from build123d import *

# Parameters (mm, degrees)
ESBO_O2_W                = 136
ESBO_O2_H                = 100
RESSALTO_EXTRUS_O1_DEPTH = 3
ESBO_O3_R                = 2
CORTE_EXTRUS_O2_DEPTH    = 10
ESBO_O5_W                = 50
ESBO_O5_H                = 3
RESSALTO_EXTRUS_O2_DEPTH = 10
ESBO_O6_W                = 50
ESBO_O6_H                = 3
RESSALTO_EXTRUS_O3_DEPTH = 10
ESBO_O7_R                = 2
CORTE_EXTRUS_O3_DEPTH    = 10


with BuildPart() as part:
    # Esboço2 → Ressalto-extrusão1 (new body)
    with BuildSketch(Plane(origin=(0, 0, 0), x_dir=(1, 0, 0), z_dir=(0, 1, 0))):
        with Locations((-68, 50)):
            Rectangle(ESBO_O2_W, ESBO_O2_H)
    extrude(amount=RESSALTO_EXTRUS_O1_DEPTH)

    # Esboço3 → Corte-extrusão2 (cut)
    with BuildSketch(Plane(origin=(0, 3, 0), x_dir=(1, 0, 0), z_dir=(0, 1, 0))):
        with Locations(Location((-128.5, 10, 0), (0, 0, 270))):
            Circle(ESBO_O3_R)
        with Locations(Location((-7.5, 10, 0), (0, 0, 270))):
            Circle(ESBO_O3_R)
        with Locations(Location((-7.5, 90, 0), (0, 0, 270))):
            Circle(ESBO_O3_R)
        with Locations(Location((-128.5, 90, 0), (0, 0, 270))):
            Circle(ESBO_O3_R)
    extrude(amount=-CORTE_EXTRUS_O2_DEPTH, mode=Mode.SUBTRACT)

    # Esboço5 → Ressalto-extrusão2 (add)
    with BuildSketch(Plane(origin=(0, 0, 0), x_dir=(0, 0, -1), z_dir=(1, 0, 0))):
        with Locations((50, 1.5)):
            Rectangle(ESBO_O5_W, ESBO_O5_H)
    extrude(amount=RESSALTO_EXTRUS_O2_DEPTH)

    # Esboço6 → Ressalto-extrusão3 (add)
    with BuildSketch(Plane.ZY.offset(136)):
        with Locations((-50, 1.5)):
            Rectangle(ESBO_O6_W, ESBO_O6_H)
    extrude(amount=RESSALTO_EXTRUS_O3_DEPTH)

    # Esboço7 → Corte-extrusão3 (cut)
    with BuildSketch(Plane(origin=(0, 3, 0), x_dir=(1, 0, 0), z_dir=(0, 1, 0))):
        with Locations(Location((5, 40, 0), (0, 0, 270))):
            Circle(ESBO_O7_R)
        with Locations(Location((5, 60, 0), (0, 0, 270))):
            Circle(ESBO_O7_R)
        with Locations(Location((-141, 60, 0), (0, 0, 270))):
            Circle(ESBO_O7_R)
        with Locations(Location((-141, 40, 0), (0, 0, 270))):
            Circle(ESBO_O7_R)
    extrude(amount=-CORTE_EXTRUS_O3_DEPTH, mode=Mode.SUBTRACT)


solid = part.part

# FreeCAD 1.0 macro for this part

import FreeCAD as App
import Part
import Sketcher
from FreeCAD import Vector
Q = App.Units.Quantity

doc = App.newDocument("Part")
body = doc.addObject("PartDesign::Body", "Body")

sketch1 = doc.addObject("Sketcher::SketchObject", "Sketch")
body.addObject(sketch1)
sketch1.AttachmentSupport = (doc.XZ_Plane, [""])
sketch1.MapMode = "FlatFace"
sketch1.addGeometry([
    Part.LineSegment(Vector(-136, -100, 0), Vector(-136, 0, 0)),
    Part.LineSegment(Vector(-136, 0, 0), Vector(0, 0, 0)),
    Part.LineSegment(Vector(0, 0, 0), Vector(0, -100, 0)),
    Part.LineSegment(Vector(0, -100, 0), Vector(-136, -100, 0)),
], False)
sketch1.addConstraint([
    Sketcher.Constraint("Coincident", 0, 2, 1, 1),
    Sketcher.Constraint("Coincident", 1, 2, 2, 1),
    Sketcher.Constraint("Coincident", 2, 2, 3, 1),
    Sketcher.Constraint("Coincident", 3, 2, 0, 1),
    Sketcher.Constraint("Vertical", 0),
    Sketcher.Constraint("Horizontal", 1),
    Sketcher.Constraint("Vertical", 2),
    Sketcher.Constraint("Horizontal", 3),
    Sketcher.Constraint("Coincident", 1, 2, -1, 1),
    Sketcher.Constraint("DistanceX", 1, 1, 1, 2, Q("136 mm")),
    Sketcher.Constraint("DistanceY", 0, 1, 0, 2, Q("100 mm")),
])
pad1 = doc.addObject("PartDesign::Pad", "Pad")
body.addObject(pad1)
pad1.Profile = sketch1
pad1.Length = 3
pad1.Reversed = True

sketch2 = doc.addObject("Sketcher::SketchObject", "Sketch001")
body.addObject(sketch2)
sketch2.AttachmentSupport = (doc.XZ_Plane, [""])
sketch2.MapMode = "FlatFace"
sketch2.AttachmentOffset = App.Placement(Vector(0, 0, -3), App.Rotation())
sketch2.addGeometry([
    Part.Circle(Vector(-128.5, -10, 0), Vector(0, 0, 1), 2),
    Part.Circle(Vector(-7.5, -10, 0), Vector(0, 0, 1), 2),
    Part.Circle(Vector(-7.5, -90, 0), Vector(0, 0, 1), 2),
    Part.Circle(Vector(-128.5, -90, 0), Vector(0, 0, 1), 2),
], False)
sketch2.addConstraint([
    Sketcher.Constraint("Equal", 0, 1),
    Sketcher.Constraint("Equal", 1, 2),
    Sketcher.Constraint("Equal", 2, 3),
    Sketcher.Constraint("Horizontal", 0, 3, 1, 3),
    Sketcher.Constraint("Horizontal", 2, 3, 3, 3),
    Sketcher.Constraint("Vertical", 1, 3, 2, 3),
    Sketcher.Constraint("Vertical", 0, 3, 3, 3),
    Sketcher.Constraint("Diameter", 0, Q("4 mm")),
    Sketcher.Constraint("DistanceY", 0, 3, -1, 1, Q("10 mm")),
    Sketcher.Constraint("DistanceY", 2, 3, -1, 1, Q("90 mm")),
    Sketcher.Constraint("DistanceX", 0, 3, 1, 3, Q("121 mm")),
    Sketcher.Constraint("DistanceX", 0, 3, -1, 1, Q("128.5 mm")),
])
pocket1 = doc.addObject("PartDesign::Pocket", "Pocket")
body.addObject(pocket1)
pocket1.Profile = sketch2
pocket1.Length = 10
pocket1.Reversed = True

sketch3 = doc.addObject("Sketcher::SketchObject", "Sketch002")
body.addObject(sketch3)
sketch3.AttachmentSupport = (doc.YZ_Plane, [""])
sketch3.MapMode = "FlatFace"
sketch3.addGeometry([
    Part.LineSegment(Vector(3, -25, 0), Vector(0, -25, 0)),
    Part.LineSegment(Vector(0, -25, 0), Vector(0, -75, 0)),
    Part.LineSegment(Vector(0, -75, 0), Vector(3, -75, 0)),
    Part.LineSegment(Vector(3, -75, 0), Vector(3, -25, 0)),
], False)
sketch3.addConstraint([
    Sketcher.Constraint("Coincident", 0, 2, 1, 1),
    Sketcher.Constraint("Coincident", 1, 2, 2, 1),
    Sketcher.Constraint("Coincident", 2, 2, 3, 1),
    Sketcher.Constraint("Coincident", 3, 2, 0, 1),
    Sketcher.Constraint("Horizontal", 0),
    Sketcher.Constraint("Vertical", 1),
    Sketcher.Constraint("Horizontal", 2),
    Sketcher.Constraint("Vertical", 3),
    Sketcher.Constraint("PointOnObject", 0, 2, -2),
    Sketcher.Constraint("DistanceX", 0, 2, 0, 1, Q("3 mm")),
    Sketcher.Constraint("DistanceY", 1, 2, 1, 1, Q("50 mm")),
    Sketcher.Constraint("DistanceY", 0, 2, -1, 1, Q("25 mm")),
])
pad2 = doc.addObject("PartDesign::Pad", "Pad001")
body.addObject(pad2)
pad2.Profile = sketch3
pad2.Length = 10

sketch4 = doc.addObject("Sketcher::SketchObject", "Sketch003")
body.addObject(sketch4)
sketch4.AttachmentSupport = (doc.YZ_Plane, [""])
sketch4.MapMode = "FlatFace"
sketch4.AttachmentOffset = App.Placement(Vector(0, 0, -136), App.Rotation())
sketch4.addGeometry([
    Part.LineSegment(Vector(3, -75, 0), Vector(0, -75, 0)),
    Part.LineSegment(Vector(0, -75, 0), Vector(0, -25, 0)),
    Part.LineSegment(Vector(0, -25, 0), Vector(3, -25, 0)),
    Part.LineSegment(Vector(3, -25, 0), Vector(3, -75, 0)),
], False)
sketch4.addConstraint([
    Sketcher.Constraint("Coincident", 0, 2, 1, 1),
    Sketcher.Constraint("Coincident", 1, 2, 2, 1),
    Sketcher.Constraint("Coincident", 2, 2, 3, 1),
    Sketcher.Constraint("Coincident", 3, 2, 0, 1),
    Sketcher.Constraint("Horizontal", 0),
    Sketcher.Constraint("Vertical", 1),
    Sketcher.Constraint("Horizontal", 2),
    Sketcher.Constraint("Vertical", 3),
    Sketcher.Constraint("PointOnObject", 0, 2, -2),
    Sketcher.Constraint("DistanceX", 0, 2, 0, 1, Q("3 mm")),
    Sketcher.Constraint("DistanceY", 1, 1, 1, 2, Q("50 mm")),
    Sketcher.Constraint("DistanceY", 0, 2, -1, 1, Q("75 mm")),
])
pad3 = doc.addObject("PartDesign::Pad", "Pad002")
body.addObject(pad3)
pad3.Profile = sketch4
pad3.Length = 10
pad3.Reversed = True

sketch5 = doc.addObject("Sketcher::SketchObject", "Sketch004")
body.addObject(sketch5)
sketch5.AttachmentSupport = (doc.XZ_Plane, [""])
sketch5.MapMode = "FlatFace"
sketch5.AttachmentOffset = App.Placement(Vector(0, 0, -3), App.Rotation())
sketch5.addGeometry([
    Part.Circle(Vector(5, -40, 0), Vector(0, 0, 1), 2),
    Part.Circle(Vector(5, -60, 0), Vector(0, 0, 1), 2),
    Part.Circle(Vector(-141, -60, 0), Vector(0, 0, 1), 2),
    Part.Circle(Vector(-141, -40, 0), Vector(0, 0, 1), 2),
], False)
sketch5.addConstraint([
    Sketcher.Constraint("Equal", 0, 1),
    Sketcher.Constraint("Equal", 1, 2),
    Sketcher.Constraint("Equal", 2, 3),
    Sketcher.Constraint("Horizontal", 1, 3, 2, 3),
    Sketcher.Constraint("Horizontal", 0, 3, 3, 3),
    Sketcher.Constraint("Vertical", 0, 3, 1, 3),
    Sketcher.Constraint("Vertical", 2, 3, 3, 3),
    Sketcher.Constraint("Diameter", 0, Q("4 mm")),
    Sketcher.Constraint("DistanceX", -1, 1, 0, 3, Q("5 mm")),
    Sketcher.Constraint("DistanceY", 0, 3, -1, 1, Q("40 mm")),
    Sketcher.Constraint("DistanceY", 1, 3, -1, 1, Q("60 mm")),
    Sketcher.Constraint("DistanceX", 2, 3, -1, 1, Q("141 mm")),
])
pocket2 = doc.addObject("PartDesign::Pocket", "Pocket001")
body.addObject(pocket2)
pocket2.Profile = sketch5
pocket2.Length = 10
pocket2.Reversed = True

doc.recompute()
